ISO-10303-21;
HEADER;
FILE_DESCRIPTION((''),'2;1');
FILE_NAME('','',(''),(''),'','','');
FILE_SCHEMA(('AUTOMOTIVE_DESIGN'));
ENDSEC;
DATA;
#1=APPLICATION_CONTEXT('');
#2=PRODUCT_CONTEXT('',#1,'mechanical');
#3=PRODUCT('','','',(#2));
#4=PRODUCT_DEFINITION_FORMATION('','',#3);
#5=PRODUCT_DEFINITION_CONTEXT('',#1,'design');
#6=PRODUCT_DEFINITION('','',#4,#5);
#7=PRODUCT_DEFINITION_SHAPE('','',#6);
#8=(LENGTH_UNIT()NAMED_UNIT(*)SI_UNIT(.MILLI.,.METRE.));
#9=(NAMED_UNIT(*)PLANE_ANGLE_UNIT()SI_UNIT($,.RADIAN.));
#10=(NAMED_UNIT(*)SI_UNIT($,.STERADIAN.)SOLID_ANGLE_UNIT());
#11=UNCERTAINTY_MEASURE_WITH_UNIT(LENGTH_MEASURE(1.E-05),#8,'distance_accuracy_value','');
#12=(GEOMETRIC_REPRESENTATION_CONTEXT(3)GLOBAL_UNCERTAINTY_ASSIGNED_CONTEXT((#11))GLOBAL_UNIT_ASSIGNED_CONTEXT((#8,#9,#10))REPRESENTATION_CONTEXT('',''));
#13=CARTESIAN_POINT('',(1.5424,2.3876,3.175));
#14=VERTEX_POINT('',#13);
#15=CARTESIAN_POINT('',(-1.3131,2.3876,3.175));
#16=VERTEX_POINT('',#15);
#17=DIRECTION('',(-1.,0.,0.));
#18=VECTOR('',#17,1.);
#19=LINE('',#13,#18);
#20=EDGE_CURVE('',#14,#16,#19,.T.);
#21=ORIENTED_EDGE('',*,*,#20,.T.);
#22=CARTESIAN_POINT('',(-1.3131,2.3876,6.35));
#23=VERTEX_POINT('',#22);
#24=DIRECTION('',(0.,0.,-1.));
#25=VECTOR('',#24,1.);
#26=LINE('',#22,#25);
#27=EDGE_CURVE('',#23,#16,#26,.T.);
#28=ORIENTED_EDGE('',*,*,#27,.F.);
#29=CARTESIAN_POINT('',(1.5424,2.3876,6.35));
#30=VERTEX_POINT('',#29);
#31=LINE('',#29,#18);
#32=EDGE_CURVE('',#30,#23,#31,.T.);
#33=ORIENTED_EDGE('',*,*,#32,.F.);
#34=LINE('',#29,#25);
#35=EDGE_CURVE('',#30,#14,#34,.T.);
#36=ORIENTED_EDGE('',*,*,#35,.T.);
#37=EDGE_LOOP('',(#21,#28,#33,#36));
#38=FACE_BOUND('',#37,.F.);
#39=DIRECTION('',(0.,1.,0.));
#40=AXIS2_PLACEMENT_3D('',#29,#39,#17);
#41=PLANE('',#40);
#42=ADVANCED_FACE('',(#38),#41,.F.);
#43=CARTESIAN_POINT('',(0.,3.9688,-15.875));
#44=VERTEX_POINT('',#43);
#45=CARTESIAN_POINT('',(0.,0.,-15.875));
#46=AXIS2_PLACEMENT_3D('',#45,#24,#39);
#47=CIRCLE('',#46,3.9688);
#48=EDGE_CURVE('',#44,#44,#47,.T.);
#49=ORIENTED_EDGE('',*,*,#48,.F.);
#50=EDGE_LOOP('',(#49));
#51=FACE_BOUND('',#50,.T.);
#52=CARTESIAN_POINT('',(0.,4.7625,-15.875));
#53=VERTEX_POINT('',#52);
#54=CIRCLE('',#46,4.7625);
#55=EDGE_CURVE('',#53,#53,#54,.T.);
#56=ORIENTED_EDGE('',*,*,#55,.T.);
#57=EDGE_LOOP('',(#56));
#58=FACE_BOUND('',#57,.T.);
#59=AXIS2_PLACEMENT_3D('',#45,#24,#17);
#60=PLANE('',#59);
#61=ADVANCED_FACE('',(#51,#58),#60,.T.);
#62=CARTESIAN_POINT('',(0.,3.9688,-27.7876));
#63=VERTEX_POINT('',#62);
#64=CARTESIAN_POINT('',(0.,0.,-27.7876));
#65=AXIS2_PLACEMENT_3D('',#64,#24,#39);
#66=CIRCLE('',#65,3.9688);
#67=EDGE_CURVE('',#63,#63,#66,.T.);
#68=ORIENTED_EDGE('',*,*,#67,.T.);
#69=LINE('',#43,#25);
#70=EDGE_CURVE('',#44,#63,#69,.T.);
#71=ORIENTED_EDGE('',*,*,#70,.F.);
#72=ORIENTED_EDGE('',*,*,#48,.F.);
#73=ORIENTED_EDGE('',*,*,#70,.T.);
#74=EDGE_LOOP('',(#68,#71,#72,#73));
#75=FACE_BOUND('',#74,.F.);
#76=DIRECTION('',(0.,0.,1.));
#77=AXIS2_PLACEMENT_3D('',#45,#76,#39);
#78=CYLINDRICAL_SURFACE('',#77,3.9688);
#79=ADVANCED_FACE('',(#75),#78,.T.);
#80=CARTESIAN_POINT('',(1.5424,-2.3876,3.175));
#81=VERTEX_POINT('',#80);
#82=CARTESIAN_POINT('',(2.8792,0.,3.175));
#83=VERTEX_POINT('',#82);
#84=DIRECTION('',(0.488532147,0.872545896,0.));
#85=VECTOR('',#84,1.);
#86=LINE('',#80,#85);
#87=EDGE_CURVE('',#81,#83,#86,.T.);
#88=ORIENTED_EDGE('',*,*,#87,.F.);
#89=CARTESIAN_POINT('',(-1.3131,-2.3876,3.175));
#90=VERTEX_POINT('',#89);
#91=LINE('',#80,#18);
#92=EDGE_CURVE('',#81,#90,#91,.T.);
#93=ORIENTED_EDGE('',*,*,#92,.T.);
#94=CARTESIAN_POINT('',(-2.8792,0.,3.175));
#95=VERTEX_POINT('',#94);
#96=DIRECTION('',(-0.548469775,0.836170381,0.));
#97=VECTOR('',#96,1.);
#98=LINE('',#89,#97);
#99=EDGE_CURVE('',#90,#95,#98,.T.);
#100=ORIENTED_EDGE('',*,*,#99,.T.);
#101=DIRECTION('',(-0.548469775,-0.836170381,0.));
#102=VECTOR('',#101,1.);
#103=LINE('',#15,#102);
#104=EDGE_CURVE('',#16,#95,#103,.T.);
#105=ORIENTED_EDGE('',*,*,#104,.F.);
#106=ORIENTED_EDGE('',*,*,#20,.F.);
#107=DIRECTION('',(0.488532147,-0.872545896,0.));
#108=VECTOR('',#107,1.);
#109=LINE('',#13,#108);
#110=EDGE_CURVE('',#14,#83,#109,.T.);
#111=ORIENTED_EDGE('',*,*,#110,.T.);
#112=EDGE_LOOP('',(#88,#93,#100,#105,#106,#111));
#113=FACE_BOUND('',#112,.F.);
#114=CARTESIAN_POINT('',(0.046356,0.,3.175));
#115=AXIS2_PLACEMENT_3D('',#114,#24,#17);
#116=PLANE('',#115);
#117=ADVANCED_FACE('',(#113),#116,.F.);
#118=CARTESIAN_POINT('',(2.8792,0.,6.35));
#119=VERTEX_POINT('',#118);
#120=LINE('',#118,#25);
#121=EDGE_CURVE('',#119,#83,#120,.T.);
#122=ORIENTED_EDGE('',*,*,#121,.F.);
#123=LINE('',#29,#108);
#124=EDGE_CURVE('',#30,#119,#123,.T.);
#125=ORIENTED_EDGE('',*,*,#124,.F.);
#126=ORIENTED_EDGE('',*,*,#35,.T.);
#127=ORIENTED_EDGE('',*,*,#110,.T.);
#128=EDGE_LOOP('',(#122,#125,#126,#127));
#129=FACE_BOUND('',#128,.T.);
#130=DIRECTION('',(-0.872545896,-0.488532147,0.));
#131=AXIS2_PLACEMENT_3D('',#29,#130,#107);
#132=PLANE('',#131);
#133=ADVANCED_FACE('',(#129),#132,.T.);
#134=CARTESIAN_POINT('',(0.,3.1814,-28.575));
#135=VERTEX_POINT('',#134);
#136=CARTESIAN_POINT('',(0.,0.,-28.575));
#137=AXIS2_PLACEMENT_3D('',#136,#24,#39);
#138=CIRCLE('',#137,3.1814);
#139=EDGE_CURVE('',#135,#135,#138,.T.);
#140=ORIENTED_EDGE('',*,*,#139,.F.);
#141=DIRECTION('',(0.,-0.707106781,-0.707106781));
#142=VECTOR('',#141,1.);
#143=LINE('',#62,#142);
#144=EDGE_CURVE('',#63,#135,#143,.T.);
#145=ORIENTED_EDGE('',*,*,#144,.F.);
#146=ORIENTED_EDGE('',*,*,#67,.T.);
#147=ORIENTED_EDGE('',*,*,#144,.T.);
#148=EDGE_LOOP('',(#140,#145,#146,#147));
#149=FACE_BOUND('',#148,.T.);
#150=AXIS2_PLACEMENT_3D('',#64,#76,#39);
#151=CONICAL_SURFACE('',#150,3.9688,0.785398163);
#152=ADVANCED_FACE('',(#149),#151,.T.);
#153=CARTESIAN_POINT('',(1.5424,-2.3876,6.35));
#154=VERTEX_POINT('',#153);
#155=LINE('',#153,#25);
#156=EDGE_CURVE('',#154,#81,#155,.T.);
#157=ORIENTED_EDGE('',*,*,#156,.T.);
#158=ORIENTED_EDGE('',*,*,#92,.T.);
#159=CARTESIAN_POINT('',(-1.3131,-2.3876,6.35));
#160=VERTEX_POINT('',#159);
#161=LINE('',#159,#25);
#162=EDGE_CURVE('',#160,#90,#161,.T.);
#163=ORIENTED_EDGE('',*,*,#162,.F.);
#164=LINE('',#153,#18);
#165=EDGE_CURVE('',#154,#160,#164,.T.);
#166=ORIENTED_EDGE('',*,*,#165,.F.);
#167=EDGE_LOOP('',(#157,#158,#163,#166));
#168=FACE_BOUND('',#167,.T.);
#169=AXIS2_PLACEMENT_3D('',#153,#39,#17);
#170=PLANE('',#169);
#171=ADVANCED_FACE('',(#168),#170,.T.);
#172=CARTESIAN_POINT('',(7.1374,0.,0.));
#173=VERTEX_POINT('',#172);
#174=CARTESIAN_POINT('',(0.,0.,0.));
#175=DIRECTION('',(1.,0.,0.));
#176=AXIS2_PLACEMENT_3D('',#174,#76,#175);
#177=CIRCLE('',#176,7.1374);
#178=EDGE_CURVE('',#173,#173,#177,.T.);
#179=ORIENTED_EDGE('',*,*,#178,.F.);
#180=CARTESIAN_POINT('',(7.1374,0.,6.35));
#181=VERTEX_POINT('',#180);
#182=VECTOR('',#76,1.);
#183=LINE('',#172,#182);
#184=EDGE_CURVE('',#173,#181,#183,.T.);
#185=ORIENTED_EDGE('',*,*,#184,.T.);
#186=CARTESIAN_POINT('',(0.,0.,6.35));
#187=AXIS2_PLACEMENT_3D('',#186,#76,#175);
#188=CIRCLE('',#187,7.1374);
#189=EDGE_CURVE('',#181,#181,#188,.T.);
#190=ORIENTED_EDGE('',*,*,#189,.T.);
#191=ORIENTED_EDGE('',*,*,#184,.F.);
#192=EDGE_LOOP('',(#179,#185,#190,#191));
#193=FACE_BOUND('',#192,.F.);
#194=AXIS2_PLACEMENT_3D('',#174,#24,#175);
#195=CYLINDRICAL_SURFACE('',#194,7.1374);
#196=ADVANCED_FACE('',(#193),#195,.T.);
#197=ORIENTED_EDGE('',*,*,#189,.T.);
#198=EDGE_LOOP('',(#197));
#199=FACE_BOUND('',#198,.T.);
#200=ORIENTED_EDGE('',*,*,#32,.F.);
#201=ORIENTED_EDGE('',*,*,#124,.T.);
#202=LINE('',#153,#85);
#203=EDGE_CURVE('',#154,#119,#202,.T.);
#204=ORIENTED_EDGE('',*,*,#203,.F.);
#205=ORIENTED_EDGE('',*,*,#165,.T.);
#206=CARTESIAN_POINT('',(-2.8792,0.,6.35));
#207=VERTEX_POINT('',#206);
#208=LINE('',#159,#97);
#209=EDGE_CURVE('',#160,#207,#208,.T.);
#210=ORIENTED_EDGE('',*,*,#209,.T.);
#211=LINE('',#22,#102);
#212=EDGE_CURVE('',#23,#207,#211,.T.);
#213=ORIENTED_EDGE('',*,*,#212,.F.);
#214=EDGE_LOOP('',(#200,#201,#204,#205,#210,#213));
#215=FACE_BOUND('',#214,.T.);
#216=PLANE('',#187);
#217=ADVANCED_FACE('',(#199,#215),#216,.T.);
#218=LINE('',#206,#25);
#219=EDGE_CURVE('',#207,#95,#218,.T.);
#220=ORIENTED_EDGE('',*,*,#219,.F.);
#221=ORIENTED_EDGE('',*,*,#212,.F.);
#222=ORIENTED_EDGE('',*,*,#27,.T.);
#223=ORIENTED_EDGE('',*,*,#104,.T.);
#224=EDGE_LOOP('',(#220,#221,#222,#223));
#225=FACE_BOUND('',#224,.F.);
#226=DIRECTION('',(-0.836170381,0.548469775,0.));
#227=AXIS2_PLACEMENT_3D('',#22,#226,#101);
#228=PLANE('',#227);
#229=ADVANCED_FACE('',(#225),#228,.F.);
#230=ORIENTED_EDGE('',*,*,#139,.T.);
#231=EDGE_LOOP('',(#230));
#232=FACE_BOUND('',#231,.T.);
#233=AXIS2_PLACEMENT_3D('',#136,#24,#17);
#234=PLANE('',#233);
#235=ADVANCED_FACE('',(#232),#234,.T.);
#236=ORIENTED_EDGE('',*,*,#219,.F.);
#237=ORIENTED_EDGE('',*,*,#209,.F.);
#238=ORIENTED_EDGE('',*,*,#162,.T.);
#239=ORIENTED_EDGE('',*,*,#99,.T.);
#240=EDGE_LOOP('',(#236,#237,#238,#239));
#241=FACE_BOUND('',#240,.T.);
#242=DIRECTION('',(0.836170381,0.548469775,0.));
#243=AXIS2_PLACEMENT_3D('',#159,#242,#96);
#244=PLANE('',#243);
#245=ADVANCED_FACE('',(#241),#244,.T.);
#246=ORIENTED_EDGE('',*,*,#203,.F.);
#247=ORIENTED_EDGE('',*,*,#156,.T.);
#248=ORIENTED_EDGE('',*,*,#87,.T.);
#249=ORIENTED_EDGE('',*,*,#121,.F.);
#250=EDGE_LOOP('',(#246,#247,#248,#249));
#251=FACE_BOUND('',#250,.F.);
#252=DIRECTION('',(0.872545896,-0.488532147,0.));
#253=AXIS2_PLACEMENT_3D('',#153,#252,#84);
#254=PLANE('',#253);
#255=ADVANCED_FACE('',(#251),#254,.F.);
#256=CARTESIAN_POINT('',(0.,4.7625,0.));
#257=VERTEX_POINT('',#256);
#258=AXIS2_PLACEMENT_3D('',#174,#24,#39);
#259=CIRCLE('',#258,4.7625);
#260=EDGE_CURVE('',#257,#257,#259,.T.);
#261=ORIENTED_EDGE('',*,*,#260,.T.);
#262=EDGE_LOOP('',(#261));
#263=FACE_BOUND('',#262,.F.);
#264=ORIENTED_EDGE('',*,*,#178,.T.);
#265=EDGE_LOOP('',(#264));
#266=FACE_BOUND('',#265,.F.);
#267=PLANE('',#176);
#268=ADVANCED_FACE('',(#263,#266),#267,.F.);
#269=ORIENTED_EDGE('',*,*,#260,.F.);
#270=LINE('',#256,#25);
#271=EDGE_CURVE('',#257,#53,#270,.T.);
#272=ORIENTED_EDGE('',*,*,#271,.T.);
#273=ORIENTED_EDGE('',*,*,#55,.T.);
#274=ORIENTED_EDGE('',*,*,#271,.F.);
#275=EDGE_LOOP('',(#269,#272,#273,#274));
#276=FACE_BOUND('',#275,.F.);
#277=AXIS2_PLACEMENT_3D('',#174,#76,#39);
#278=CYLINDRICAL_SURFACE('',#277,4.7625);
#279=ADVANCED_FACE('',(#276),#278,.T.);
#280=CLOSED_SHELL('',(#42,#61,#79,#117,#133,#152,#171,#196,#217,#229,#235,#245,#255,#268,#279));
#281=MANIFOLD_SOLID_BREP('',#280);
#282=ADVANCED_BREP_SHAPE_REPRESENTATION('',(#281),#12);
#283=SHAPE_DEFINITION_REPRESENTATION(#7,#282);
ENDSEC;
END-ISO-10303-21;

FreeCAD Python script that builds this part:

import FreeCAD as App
import Part
import Sketcher
from FreeCAD import Vector
Q = App.Units.Quantity


def edges_at(feature, points):
    """Names of the edges that pass closest to the given points."""
    edges = feature.Shape.Edges
    near = lambda p: min(range(len(edges)), key=lambda i: edges[i].distToShape(Part.Vertex(*p))[0])
    return sorted({f"Edge{near(p) + 1}" for p in points})

doc = App.newDocument("Part")
body = doc.addObject("PartDesign::Body", "Body")

# Sketch on XY plane
sketch1 = body.newObject("Sketcher::SketchObject", "Sketch")
sketch1.AttachmentSupport = (doc.getObject("XY_Plane"), [""])
sketch1.MapMode = "FlatFace"
sketch1.addGeometry(Part.Circle(Vector(0, 0, 0), Vector(0, 0, 1), 7.1374), False)
sketch1.addConstraint([
    Sketcher.Constraint("Coincident", 0, 3, -1, 1),
    Sketcher.Constraint("Diameter", 0, Q("0.562 in")),
])
pad1 = body.newObject("PartDesign::Pad", "Pad")
pad1.Profile = sketch1
pad1.Length = Q("0.25 in")

# Sketch on XY plane
sketch2 = body.newObject("Sketcher::SketchObject", "Sketch001")
sketch2.AttachmentSupport = (doc.getObject("XY_Plane"), [""])
sketch2.MapMode = "FlatFace"
sketch2.addGeometry(Part.Circle(Vector(0, 0, 0), Vector(0, 0, 1), 4.7625), False)
sketch2.addConstraint([
    Sketcher.Constraint("Coincident", 0, 3, -1, 1),
    Sketcher.Constraint("Diameter", 0, Q("0.375 in")),
])
pad2 = body.newObject("PartDesign::Pad", "Pad001")
pad2.Profile = sketch2
pad2.Length = Q("0.625 in")
pad2.Reversed = True

# Sketch on XY plane
sketch3 = body.newObject("Sketcher::SketchObject", "Sketch002")
sketch3.AttachmentSupport = (doc.getObject("XY_Plane"), [""])
sketch3.MapMode = "FlatFace"
sketch3.AttachmentOffset = App.Placement(Vector(0, 0, -0.625 * 25.4), App.Rotation())
sketch3.addGeometry(Part.Circle(Vector(0, 0, 0), Vector(0, 0, 1), 3.9688), False)
sketch3.addConstraint([
    Sketcher.Constraint("Coincident", 0, 3, -1, 1),
    Sketcher.Constraint("Diameter", 0, Q("0.3125 in")),
])
pad3 = body.newObject("PartDesign::Pad", "Pad002")
pad3.Profile = sketch3
pad3.Length = Q("0.5 in")
pad3.Reversed = True

# Sketch on XY plane
sketch4 = body.newObject("Sketcher::SketchObject", "Sketch003")
sketch4.AttachmentSupport = (doc.getObject("XY_Plane"), [""])
sketch4.MapMode = "FlatFace"
sketch4.AttachmentOffset = App.Placement(Vector(0, 0, 0.25 * 25.4), App.Rotation())
sketch4.addGeometry([
    Part.LineSegment(Vector(-2.8792, 0, 0), Vector(-1.3131, -2.3876, 0)),  # 0
    Part.LineSegment(Vector(-1.3131, -2.3876, 0), Vector(1.5424, -2.3876, 0)),  # 1
    Part.LineSegment(Vector(1.5424, -2.3876, 0), Vector(2.8792, 0, 0)),  # 2
    Part.LineSegment(Vector(2.8792, 0, 0), Vector(1.5424, 2.3876, 0)),  # 3
    Part.LineSegment(Vector(1.5424, 2.3876, 0), Vector(-1.3131, 2.3876, 0)),  # 4
    Part.LineSegment(Vector(-1.3131, 2.3876, 0), Vector(-2.8792, 0, 0)),  # 5
], False)
sketch4.addConstraint([
    Sketcher.Constraint("Coincident", 0, 2, 1, 1),
    Sketcher.Constraint("Coincident", 1, 2, 2, 1),
    Sketcher.Constraint("Coincident", 2, 2, 3, 1),
    Sketcher.Constraint("Coincident", 3, 2, 4, 1),
    Sketcher.Constraint("Coincident", 4, 2, 5, 1),
    Sketcher.Constraint("Coincident", 5, 2, 0, 1),
    Sketcher.Constraint("Horizontal", 1),
    Sketcher.Constraint("Horizontal", 4),
    Sketcher.Constraint("Symmetric", 2, 2, 5, 2, -1, 1),
    Sketcher.Constraint("Symmetric", 1, 2, 3, 2, -1),
    Sketcher.Constraint("PointOnObject", 2, 2, -1),
    Sketcher.Constraint("Vertical", 0, 2, 4, 2),
    Sketcher.Constraint("DistanceY", 0, 2, -1, 1, Q("0.094 in")),
    Sketcher.Constraint("DistanceX", 1, 1, 1, 2, Q("2.8555 mm")),
    Sketcher.Constraint("DistanceX", 0, 2, -1, 1, Q("0.0517 in")),
    Sketcher.Constraint("DistanceX", 5, 2, 2, 2, Q("0.2267 in")),
])
pocket1 = body.newObject("PartDesign::Pocket", "Pocket")
pocket1.Profile = sketch4
pocket1.Length = Q("0.125 in")
doc.recompute()

chamfer = body.newObject("PartDesign::Chamfer", "Chamfer")
chamfer.Base = (pocket1, edges_at(pocket1, [(0, -3.969, -28.575)]))
chamfer.Size = Q("0.031 in")

doc.recompute()
